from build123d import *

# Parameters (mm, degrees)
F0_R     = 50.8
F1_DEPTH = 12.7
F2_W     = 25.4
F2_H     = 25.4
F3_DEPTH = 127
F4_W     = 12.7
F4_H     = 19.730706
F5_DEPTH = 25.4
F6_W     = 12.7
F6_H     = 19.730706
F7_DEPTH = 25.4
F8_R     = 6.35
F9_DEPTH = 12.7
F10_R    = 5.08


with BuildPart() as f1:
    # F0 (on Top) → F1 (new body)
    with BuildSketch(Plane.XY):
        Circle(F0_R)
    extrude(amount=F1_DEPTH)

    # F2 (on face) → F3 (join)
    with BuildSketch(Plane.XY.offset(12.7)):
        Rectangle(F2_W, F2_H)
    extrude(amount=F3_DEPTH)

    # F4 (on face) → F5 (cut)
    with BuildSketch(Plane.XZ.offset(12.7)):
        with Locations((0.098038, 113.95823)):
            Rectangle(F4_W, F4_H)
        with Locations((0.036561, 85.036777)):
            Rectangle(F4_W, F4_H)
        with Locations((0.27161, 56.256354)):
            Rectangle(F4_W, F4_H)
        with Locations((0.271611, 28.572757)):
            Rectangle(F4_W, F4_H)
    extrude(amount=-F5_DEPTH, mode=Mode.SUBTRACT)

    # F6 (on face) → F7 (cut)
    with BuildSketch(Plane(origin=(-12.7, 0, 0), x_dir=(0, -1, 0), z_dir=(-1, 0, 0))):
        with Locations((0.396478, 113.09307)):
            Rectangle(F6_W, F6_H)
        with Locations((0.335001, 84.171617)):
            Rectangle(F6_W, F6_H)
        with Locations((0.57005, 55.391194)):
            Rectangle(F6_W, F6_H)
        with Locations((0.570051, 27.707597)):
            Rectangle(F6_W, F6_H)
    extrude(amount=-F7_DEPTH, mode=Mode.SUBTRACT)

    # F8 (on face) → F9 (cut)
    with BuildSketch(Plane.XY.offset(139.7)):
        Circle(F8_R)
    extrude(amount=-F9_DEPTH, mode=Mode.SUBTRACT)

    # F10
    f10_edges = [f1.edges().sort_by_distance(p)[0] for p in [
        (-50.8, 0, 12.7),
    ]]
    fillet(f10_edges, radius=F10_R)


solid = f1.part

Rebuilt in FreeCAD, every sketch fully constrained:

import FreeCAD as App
import Part
import Sketcher
Q = App.Units.Quantity


def edges_at(feature, points):
    """Names of the edges that pass closest to the given points."""
    edges = feature.Shape.Edges
    near = lambda p: min(range(len(edges)), key=lambda i: edges[i].distToShape(Part.Vertex(*p))[0])
    return sorted({f"Edge{near(p) + 1}" for p in points})

doc = App.newDocument("Part")
body = doc.addObject("PartDesign::Body", "Body")

# Sketch on XY plane
sketch1 = body.newObject("Sketcher::SketchObject", "Sketch")
sketch1.AttachmentSupport = (doc.getObject("XY_Plane"), [""])
sketch1.MapMode = "FlatFace"
sketch1.addGeometry(Part.Circle(App.Vector(0, 0, 0), App.Vector(0, 0, 1), 51), False)
sketch1.addConstraint([
    Sketcher.Constraint("Coincident", 0, 3, -1, 1),
    Sketcher.Constraint("Diameter", 0, Q("4 in")),
])
pad1 = body.newObject("PartDesign::Pad", "Pad")
pad1.Profile = sketch1
pad1.Length = Q("0.5 in")

# Sketch on XY plane
sketch2 = body.newObject("Sketcher::SketchObject", "Sketch001")
sketch2.AttachmentSupport = (doc.getObject("XY_Plane"), [""])
sketch2.MapMode = "FlatFace"
sketch2.AttachmentOffset = App.Placement(App.Vector(0, 0, 0.5 * 25.4), App.Rotation())
sketch2.addGeometry([
    Part.LineSegment(App.Vector(-13, 13, 0), App.Vector(-13, -13, 0)),
    Part.LineSegment(App.Vector(-13, -13, 0), App.Vector(13, -13, 0)),
    Part.LineSegment(App.Vector(13, -13, 0), App.Vector(13, 13, 0)),
    Part.LineSegment(App.Vector(13, 13, 0), App.Vector(-13, 13, 0)),
], False)
sketch2.addConstraint([
    Sketcher.Constraint("Coincident", 0, 2, 1, 1),
    Sketcher.Constraint("Coincident", 1, 2, 2, 1),
    Sketcher.Constraint("Coincident", 2, 2, 3, 1),
    Sketcher.Constraint("Coincident", 3, 2, 0, 1),
    Sketcher.Constraint("Vertical", 0),
    Sketcher.Constraint("Horizontal", 1),
    Sketcher.Constraint("Vertical", 2),
    Sketcher.Constraint("Horizontal", 3),
    Sketcher.Constraint("Symmetric", 0, 2, 2, 2, -1, 1),
    Sketcher.Constraint("Equal", 3, 0),
    Sketcher.Constraint("DistanceX", 1, 1, 1, 2, Q("1 in")),
])
pad2 = body.newObject("PartDesign::Pad", "Pad001")
pad2.Profile = sketch2
pad2.Length = Q("5 in")

# Sketch on XZ plane
sketch3 = body.newObject("Sketcher::SketchObject", "Sketch002")
sketch3.AttachmentSupport = (doc.getObject("XZ_Plane"), [""])
sketch3.MapMode = "FlatFace"
sketch3.AttachmentOffset = App.Placement(App.Vector(0, 0, 0.5 * 25.4), App.Rotation())
sketch3.addGeometry([
    Part.LineSegment(App.Vector(-6, 124, 0), App.Vector(-6, 104, 0)),  # 0
    Part.LineSegment(App.Vector(-6, 104, 0), App.Vector(6, 104, 0)),  # 1
    Part.LineSegment(App.Vector(6, 104, 0), App.Vector(6, 124, 0)),  # 2
    Part.LineSegment(App.Vector(6, 124, 0), App.Vector(-6, 124, 0)),  # 3
    Part.LineSegment(App.Vector(-6, 95, 0), App.Vector(-6, 75, 0)),  # 4
    Part.LineSegment(App.Vector(-6, 75, 0), App.Vector(6, 75, 0)),  # 5
    Part.LineSegment(App.Vector(6, 75, 0), App.Vector(6, 95, 0)),  # 6
    Part.LineSegment(App.Vector(6, 95, 0), App.Vector(-6, 95, 0)),  # 7
    Part.LineSegment(App.Vector(-6, 66, 0), App.Vector(-6, 46, 0)),  # 8
    Part.LineSegment(App.Vector(-6, 46, 0), App.Vector(7, 46, 0)),  # 9
    Part.LineSegment(App.Vector(7, 46, 0), App.Vector(7, 66, 0)),  # 10
    Part.LineSegment(App.Vector(7, 66, 0), App.Vector(-6, 66, 0)),  # 11
    Part.LineSegment(App.Vector(-6, 38, 0), App.Vector(-6, 19, 0)),  # 12
    Part.LineSegment(App.Vector(-6, 19, 0), App.Vector(7, 19, 0)),  # 13
    Part.LineSegment(App.Vector(7, 19, 0), App.Vector(7, 38, 0)),  # 14
    Part.LineSegment(App.Vector(7, 38, 0), App.Vector(-6, 38, 0)),  # 15
], False)
sketch3.addConstraint([
    Sketcher.Constraint("Coincident", 0, 2, 1, 1),
    Sketcher.Constraint("Coincident", 1, 2, 2, 1),
    Sketcher.Constraint("Coincident", 2, 2, 3, 1),
    Sketcher.Constraint("Coincident", 3, 2, 0, 1),
    Sketcher.Constraint("Coincident", 4, 2, 5, 1),
    Sketcher.Constraint("Coincident", 5, 2, 6, 1),
    Sketcher.Constraint("Coincident", 6, 2, 7, 1),
    Sketcher.Constraint("Coincident", 7, 2, 4, 1),
    Sketcher.Constraint("Coincident", 8, 2, 9, 1),
    Sketcher.Constraint("Coincident", 9, 2, 10, 1),
    Sketcher.Constraint("Coincident", 10, 2, 11, 1),
    Sketcher.Constraint("Coincident", 11, 2, 8, 1),
    Sketcher.Constraint("Coincident", 12, 2, 13, 1),
    Sketcher.Constraint("Coincident", 13, 2, 14, 1),
    Sketcher.Constraint("Coincident", 14, 2, 15, 1),
    Sketcher.Constraint("Coincident", 15, 2, 12, 1),
    Sketcher.Constraint("Vertical", 0),
    Sketcher.Constraint("Horizontal", 1),
    Sketcher.Constraint("Vertical", 2),
    Sketcher.Constraint("Horizontal", 3),
    Sketcher.Constraint("Vertical", 4),
    Sketcher.Constraint("Horizontal", 5),
    Sketcher.Constraint("Vertical", 6),
    Sketcher.Constraint("Horizontal", 7),
    Sketcher.Constraint("Vertical", 8),
    Sketcher.Constraint("Horizontal", 9),
    Sketcher.Constraint("Vertical", 10),
    Sketcher.Constraint("Horizontal", 11),
    Sketcher.Constraint("Vertical", 12),
    Sketcher.Constraint("Horizontal", 13),
    Sketcher.Constraint("Vertical", 14),
    Sketcher.Constraint("Horizontal", 15),
    Sketcher.Constraint("Vertical", 11, 2, 12, 2),
    Sketcher.Constraint("Vertical", 10, 2, 13, 2),
    Sketcher.Constraint("Equal", 3, 5),
    Sketcher.Constraint("Equal", 7, 9),
    Sketcher.Constraint("Equal", 2, 4),
    Sketcher.Constraint("Equal", 6, 8),
    Sketcher.Constraint("Equal", 10, 12),
    Sketcher.Constraint("DistanceX", 1, 1, 1, 2, Q("0.5 in")),
    Sketcher.Constraint("DistanceY", -1, 1, 8, 2, 46.391001),
    Sketcher.Constraint("DistanceY", 0, 2, 0, 1, 19.730706),
    Sketcher.Constraint("DistanceX", 0, 2, -1, 1, 6.251962),
    Sketcher.Constraint("DistanceX", 4, 2, -1, 1, 6.313439),
    Sketcher.Constraint("DistanceY", -1, 1, 6, 2, 94.90213),
    Sketcher.Constraint("DistanceX", 8, 2, -1, 1, 6.07839),
    Sketcher.Constraint("DistanceY", -1, 1, 14, 2, 38.43811),
    Sketcher.Constraint("DistanceY", 4, 2, 3, 2, 48.652159),
])
pocket1 = body.newObject("PartDesign::Pocket", "Pocket")
pocket1.Profile = sketch3
pocket1.Length = Q("1 in")

# Sketch on YZ plane
sketch4 = body.newObject("Sketcher::SketchObject", "Sketch003")
sketch4.AttachmentSupport = (doc.getObject("YZ_Plane"), [""])
sketch4.MapMode = "FlatFace"
sketch4.AttachmentOffset = App.Placement(App.Vector(0, 0, -0.5 * 25.4), App.Rotation())
sketch4.addGeometry([
    Part.LineSegment(App.Vector(6, 123, 0), App.Vector(6, 103, 0)),  # 0
    Part.LineSegment(App.Vector(6, 103, 0), App.Vector(-7, 103, 0)),  # 1
    Part.LineSegment(App.Vector(-7, 103, 0), App.Vector(-7, 123, 0)),  # 2
    Part.LineSegment(App.Vector(-7, 123, 0), App.Vector(6, 123, 0)),  # 3
    Part.LineSegment(App.Vector(6, 94, 0), App.Vector(6, 74, 0)),  # 4
    Part.LineSegment(App.Vector(6, 74, 0), App.Vector(-7, 74, 0)),  # 5
    Part.LineSegment(App.Vector(-7, 74, 0), App.Vector(-7, 94, 0)),  # 6
    Part.LineSegment(App.Vector(-7, 94, 0), App.Vector(6, 94, 0)),  # 7
    Part.LineSegment(App.Vector(6, 65, 0), App.Vector(6, 46, 0)),  # 8
    Part.LineSegment(App.Vector(6, 46, 0), App.Vector(-7, 46, 0)),  # 9
    Part.LineSegment(App.Vector(-7, 46, 0), App.Vector(-7, 65, 0)),  # 10
    Part.LineSegment(App.Vector(-7, 65, 0), App.Vector(6, 65, 0)),  # 11
    Part.LineSegment(App.Vector(6, 38, 0), App.Vector(6, 18, 0)),  # 12
    Part.LineSegment(App.Vector(6, 18, 0), App.Vector(-7, 18, 0)),  # 13
    Part.LineSegment(App.Vector(-7, 18, 0), App.Vector(-7, 38, 0)),  # 14
    Part.LineSegment(App.Vector(-7, 38, 0), App.Vector(6, 38, 0)),  # 15
], False)
sketch4.addConstraint([
    Sketcher.Constraint("Coincident", 0, 2, 1, 1),
    Sketcher.Constraint("Coincident", 1, 2, 2, 1),
    Sketcher.Constraint("Coincident", 2, 2, 3, 1),
    Sketcher.Constraint("Coincident", 3, 2, 0, 1),
    Sketcher.Constraint("Coincident", 4, 2, 5, 1),
    Sketcher.Constraint("Coincident", 5, 2, 6, 1),
    Sketcher.Constraint("Coincident", 6, 2, 7, 1),
    Sketcher.Constraint("Coincident", 7, 2, 4, 1),
    Sketcher.Constraint("Coincident", 8, 2, 9, 1),
    Sketcher.Constraint("Coincident", 9, 2, 10, 1),
    Sketcher.Constraint("Coincident", 10, 2, 11, 1),
    Sketcher.Constraint("Coincident", 11, 2, 8, 1),
    Sketcher.Constraint("Coincident", 12, 2, 13, 1),
    Sketcher.Constraint("Coincident", 13, 2, 14, 1),
    Sketcher.Constraint("Coincident", 14, 2, 15, 1),
    Sketcher.Constraint("Coincident", 15, 2, 12, 1),
    Sketcher.Constraint("Vertical", 0),
    Sketcher.Constraint("Horizontal", 1),
    Sketcher.Constraint("Vertical", 2),
    Sketcher.Constraint("Horizontal", 3),
    Sketcher.Constraint("Vertical", 4),
    Sketcher.Constraint("Horizontal", 5),
    Sketcher.Constraint("Vertical", 6),
    Sketcher.Constraint("Horizontal", 7),
    Sketcher.Constraint("Vertical", 8),
    Sketcher.Constraint("Horizontal", 9),
    Sketcher.Constraint("Vertical", 10),
    Sketcher.Constraint("Horizontal", 11),
    Sketcher.Constraint("Vertical", 12),
    Sketcher.Constraint("Horizontal", 13),
    Sketcher.Constraint("Vertical", 14),
    Sketcher.Constraint("Horizontal", 15),
    Sketcher.Constraint("Vertical", 11, 2, 12, 2),
    Sketcher.Constraint("Vertical", 10, 2, 13, 2),
    Sketcher.Constraint("Equal", 3, 5),
    Sketcher.Constraint("Equal", 7, 9),
    Sketcher.Constraint("Equal", 2, 4),
    Sketcher.Constraint("Equal", 6, 8),
    Sketcher.Constraint("Equal", 10, 12),
    Sketcher.Constraint("DistanceX", 1, 2, 1, 1, Q("0.5 in")),
    Sketcher.Constraint("DistanceX", -1, 1, 4, 2, 6.014999),
    Sketcher.Constraint("DistanceY", 0, 2, 0, 1, 19.730706),
    Sketcher.Constraint("DistanceY", -1, 1, 6, 2, 94.03697),
    Sketcher.Constraint("DistanceX", -1, 1, 8, 2, 5.77995),
    Sketcher.Constraint("DistanceY", -1, 1, 8, 2, 45.525841),
    Sketcher.Constraint("DistanceY", -1, 1, 14, 2, 37.57295),
    Sketcher.Constraint("DistanceY", 4, 2, 3, 2, 48.652159),
    Sketcher.Constraint("DistanceX", -1, 1, 0, 2, 5.953522),
])
pocket2 = body.newObject("PartDesign::Pocket", "Pocket001")
pocket2.Profile = sketch4
pocket2.Length = Q("1 in")
pocket2.Reversed = True

# Sketch on XY plane
sketch5 = body.newObject("Sketcher::SketchObject", "Sketch004")
sketch5.AttachmentSupport = (doc.getObject("XY_Plane"), [""])
sketch5.MapMode = "FlatFace"
sketch5.AttachmentOffset = App.Placement(App.Vector(0, 0, 5.5 * 25.4), App.Rotation())
sketch5.addGeometry(Part.Circle(App.Vector(0, 0, 0), App.Vector(0, 0, 1), 6), False)
sketch5.addConstraint([
    Sketcher.Constraint("Coincident", 0, 3, -1, 1),
    Sketcher.Constraint("Diameter", 0, Q("0.5 in")),
])
pocket3 = body.newObject("PartDesign::Pocket", "Pocket002")
pocket3.Profile = sketch5
pocket3.Length = Q("0.5 in")
doc.recompute()

fillet = body.newObject("PartDesign::Fillet", "Fillet")
fillet.Base = (pocket3, edges_at(pocket3, [(-50.8, 0, 12.7)]))
fillet.Radius = Q("0.2 in")

doc.recompute()
